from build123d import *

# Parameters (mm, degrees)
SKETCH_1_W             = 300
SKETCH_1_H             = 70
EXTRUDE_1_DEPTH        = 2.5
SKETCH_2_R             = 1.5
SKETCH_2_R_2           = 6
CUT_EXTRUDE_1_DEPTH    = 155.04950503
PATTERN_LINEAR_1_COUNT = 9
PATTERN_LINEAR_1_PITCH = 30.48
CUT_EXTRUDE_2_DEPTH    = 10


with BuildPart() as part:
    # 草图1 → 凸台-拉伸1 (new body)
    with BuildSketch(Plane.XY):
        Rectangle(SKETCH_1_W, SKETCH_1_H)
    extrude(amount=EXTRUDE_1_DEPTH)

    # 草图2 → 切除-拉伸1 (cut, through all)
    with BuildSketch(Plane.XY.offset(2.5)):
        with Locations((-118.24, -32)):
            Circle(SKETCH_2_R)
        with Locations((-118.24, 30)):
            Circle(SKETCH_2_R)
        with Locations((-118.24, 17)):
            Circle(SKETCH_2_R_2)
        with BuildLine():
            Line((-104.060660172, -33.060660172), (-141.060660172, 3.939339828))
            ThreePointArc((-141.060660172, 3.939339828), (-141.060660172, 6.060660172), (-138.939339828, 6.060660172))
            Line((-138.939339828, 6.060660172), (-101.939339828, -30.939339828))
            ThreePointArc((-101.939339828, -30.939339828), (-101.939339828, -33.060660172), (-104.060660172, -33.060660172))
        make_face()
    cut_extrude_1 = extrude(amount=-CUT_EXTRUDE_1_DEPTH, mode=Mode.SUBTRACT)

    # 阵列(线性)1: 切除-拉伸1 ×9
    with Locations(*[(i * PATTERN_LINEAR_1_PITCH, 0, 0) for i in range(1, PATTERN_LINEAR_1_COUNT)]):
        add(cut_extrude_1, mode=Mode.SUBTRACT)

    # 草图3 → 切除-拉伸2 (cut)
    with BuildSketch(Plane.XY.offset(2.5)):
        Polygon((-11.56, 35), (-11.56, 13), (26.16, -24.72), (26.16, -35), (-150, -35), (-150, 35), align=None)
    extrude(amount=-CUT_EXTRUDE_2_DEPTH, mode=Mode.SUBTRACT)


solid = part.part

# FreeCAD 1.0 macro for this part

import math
import FreeCAD as App
import Part
import Sketcher
from FreeCAD import Vector
Q = App.Units.Quantity

doc = App.newDocument("Part")
body = doc.addObject("PartDesign::Body", "Body")

sketch1 = body.newObject("Sketcher::SketchObject", "Sketch")
sketch1.AttachmentSupport = (doc.getObject("XY_Plane"), [""])
sketch1.MapMode = "FlatFace"
sketch1.addGeometry(Part.LineSegment(Vector(-150, 35, 0), Vector(-150, -35, 0)), False)
sketch1.addGeometry(Part.LineSegment(Vector(-150, -35, 0), Vector(150, -35, 0)), False)
sketch1.addGeometry(Part.LineSegment(Vector(150, -35, 0), Vector(150, 35, 0)), False)
sketch1.addGeometry(Part.LineSegment(Vector(150, 35, 0), Vector(-150, 35, 0)), False)
sketch1.addConstraint(Sketcher.Constraint("Coincident", 0, 2, 1, 1))
sketch1.addConstraint(Sketcher.Constraint("Coincident", 1, 2, 2, 1))
sketch1.addConstraint(Sketcher.Constraint("Coincident", 2, 2, 3, 1))
sketch1.addConstraint(Sketcher.Constraint("Coincident", 3, 2, 0, 1))
sketch1.addConstraint(Sketcher.Constraint("Vertical", 0))
sketch1.addConstraint(Sketcher.Constraint("Horizontal", 1))
sketch1.addConstraint(Sketcher.Constraint("Vertical", 2))
sketch1.addConstraint(Sketcher.Constraint("Horizontal", 3))
sketch1.addConstraint(Sketcher.Constraint("Symmetric", 0, 2, 2, 2, -1, 1))
sketch1.addConstraint(Sketcher.Constraint("DistanceX", 1, 1, 1, 2, Q("300 mm")))
sketch1.addConstraint(Sketcher.Constraint("DistanceY", 0, 2, 0, 1, Q("70 mm")))
pad1 = body.newObject("PartDesign::Pad", "Pad")
pad1.Profile = sketch1
pad1.Length = 2.5

sketch2 = body.newObject("Sketcher::SketchObject", "Sketch001")
sketch2.AttachmentSupport = (doc.getObject("XY_Plane"), [""])
sketch2.MapMode = "FlatFace"
sketch2.AttachmentOffset = App.Placement(Vector(0, 0, 2.5), App.Rotation())
sketch2.addGeometry(Part.Circle(Vector(-118.2, -32, 0), Vector(0, 0, 1), 1.5), False)
sketch2.addGeometry(Part.Circle(Vector(-118.2, 30, 0), Vector(0, 0, 1), 1.5), False)
sketch2.addGeometry(Part.Circle(Vector(-118.2, 17, 0), Vector(0, 0, 1), 6), False)
sketch2.addGeometry(Part.LineSegment(Vector(-141.1, 3.9, 0), Vector(-104.1, -33.1, 0)), False)
sketch2.addGeometry(Part.ArcOfCircle(Part.Circle(Vector(-103, -32, 0), Vector(0, 0, 1), 1.5), math.radians(-135), math.radians(45)), False)
sketch2.addGeometry(Part.LineSegment(Vector(-101.9, -30.9, 0), Vector(-138.9, 6.1, 0)), False)
sketch2.addGeometry(Part.ArcOfCircle(Part.Circle(Vector(-140, 5, 0), Vector(0, 0, 1), 1.5), math.radians(45), math.radians(225)), False)
sketch2.addConstraint(Sketcher.Constraint("Tangent", 3, 2, 4, 1))
sketch2.addConstraint(Sketcher.Constraint("Tangent", 4, 2, 5, 1))
sketch2.addConstraint(Sketcher.Constraint("Tangent", 5, 2, 6, 1))
sketch2.addConstraint(Sketcher.Constraint("Tangent", 6, 2, 3, 1))
sketch2.addConstraint(Sketcher.Constraint("Equal", 0, 1))
sketch2.addConstraint(Sketcher.Constraint("Equal", 1, 4))
sketch2.addConstraint(Sketcher.Constraint("Equal", 4, 6))
sketch2.addConstraint(Sketcher.Constraint("Horizontal", 0, 3, 4, 3))
sketch2.addConstraint(Sketcher.Constraint("Vertical", 0, 3, 1, 3))
sketch2.addConstraint(Sketcher.Constraint("Vertical", 1, 3, 2, 3))
sketch2.addConstraint(Sketcher.Constraint("Diameter", 0, Q("3 mm")))
sketch2.addConstraint(Sketcher.Constraint("Diameter", 2, Q("12 mm")))
sketch2.addConstraint(Sketcher.Constraint("Angle", 3, Q("-45 deg")))
sketch2.addConstraint(Sketcher.Constraint("DistanceY", 0, 3, -1, 1, Q("32 mm")))
sketch2.addConstraint(Sketcher.Constraint("DistanceY", -1, 1, 1, 3, Q("30 mm")))
sketch2.addConstraint(Sketcher.Constraint("DistanceY", -1, 1, 2, 3, Q("17 mm")))
sketch2.addConstraint(Sketcher.Constraint("DistanceX", 4, 3, -1, 1, Q("103 mm")))
sketch2.addConstraint(Sketcher.Constraint("DistanceX", 6, 3, -1, 1, Q("140 mm")))
sketch2.addConstraint(Sketcher.Constraint("DistanceX", 0, 3, -1, 1, Q("118.24 mm")))
pocket1 = body.newObject("PartDesign::Pocket", "Pocket")
pocket1.Profile = sketch2
pocket1.Type = "ThroughAll"
doc.recompute()

linearpattern = body.newObject("PartDesign::LinearPattern", "LinearPattern")
linearpattern.Originals = [pocket1]
linearpattern.Direction = (doc.getObject("X_Axis"), [""])
linearpattern.Mode = "offset"
linearpattern.Offset = 30.48
linearpattern.Occurrences = 9
body.Tip = linearpattern

sketch3 = body.newObject("Sketcher::SketchObject", "Sketch002")
sketch3.AttachmentSupport = (doc.getObject("XY_Plane"), [""])
sketch3.MapMode = "FlatFace"
sketch3.AttachmentOffset = App.Placement(Vector(0, 0, 2.5), App.Rotation())
sketch3.addGeometry(Part.LineSegment(Vector(-12, 13, 0), Vector(-12, 35, 0)), False)
sketch3.addGeometry(Part.LineSegment(Vector(-12, 35, 0), Vector(-150, 35, 0)), False)
sketch3.addGeometry(Part.LineSegment(Vector(-150, 35, 0), Vector(-150, -35, 0)), False)
sketch3.addGeometry(Part.LineSegment(Vector(-150, -35, 0), Vector(26, -35, 0)), False)
sketch3.addGeometry(Part.LineSegment(Vector(26, -35, 0), Vector(26, -25, 0)), False)
sketch3.addGeometry(Part.LineSegment(Vector(26, -25, 0), Vector(-12, 13, 0)), False)
sketch3.addConstraint(Sketcher.Constraint("Coincident", 0, 2, 1, 1))
sketch3.addConstraint(Sketcher.Constraint("Coincident", 1, 2, 2, 1))
sketch3.addConstraint(Sketcher.Constraint("Coincident", 2, 2, 3, 1))
sketch3.addConstraint(Sketcher.Constraint("Coincident", 3, 2, 4, 1))
sketch3.addConstraint(Sketcher.Constraint("Coincident", 4, 2, 5, 1))
sketch3.addConstraint(Sketcher.Constraint("Coincident", 5, 2, 0, 1))
sketch3.addConstraint(Sketcher.Constraint("Vertical", 0))
sketch3.addConstraint(Sketcher.Constraint("Horizontal", 1))
sketch3.addConstraint(Sketcher.Constraint("Vertical", 2))
sketch3.addConstraint(Sketcher.Constraint("Horizontal", 3))
sketch3.addConstraint(Sketcher.Constraint("Vertical", 4))
sketch3.addConstraint(Sketcher.Constraint("DistanceY", 0, 1, 0, 2, Q("22 mm")))
sketch3.addConstraint(Sketcher.Constraint("DistanceY", 2, 2, 2, 1, Q("70 mm")))
sketch3.addConstraint(Sketcher.Constraint("Angle", 5, Q("135 deg")))
sketch3.addConstraint(Sketcher.Constraint("DistanceY", -1, 1, 0, 2, Q("35 mm")))
sketch3.addConstraint(Sketcher.Constraint("DistanceX", 1, 2, -1, 1, Q("150 mm")))
sketch3.addConstraint(Sketcher.Constraint("DistanceX", 1, 2, 1, 1, Q("138.44 mm")))
sketch3.addConstraint(Sketcher.Constraint("DistanceX", 3, 1, 3, 2, Q("176.16 mm")))
pocket2 = body.newObject("PartDesign::Pocket", "Pocket001")
pocket2.Profile = sketch3
pocket2.Length = 10

doc.recompute()
